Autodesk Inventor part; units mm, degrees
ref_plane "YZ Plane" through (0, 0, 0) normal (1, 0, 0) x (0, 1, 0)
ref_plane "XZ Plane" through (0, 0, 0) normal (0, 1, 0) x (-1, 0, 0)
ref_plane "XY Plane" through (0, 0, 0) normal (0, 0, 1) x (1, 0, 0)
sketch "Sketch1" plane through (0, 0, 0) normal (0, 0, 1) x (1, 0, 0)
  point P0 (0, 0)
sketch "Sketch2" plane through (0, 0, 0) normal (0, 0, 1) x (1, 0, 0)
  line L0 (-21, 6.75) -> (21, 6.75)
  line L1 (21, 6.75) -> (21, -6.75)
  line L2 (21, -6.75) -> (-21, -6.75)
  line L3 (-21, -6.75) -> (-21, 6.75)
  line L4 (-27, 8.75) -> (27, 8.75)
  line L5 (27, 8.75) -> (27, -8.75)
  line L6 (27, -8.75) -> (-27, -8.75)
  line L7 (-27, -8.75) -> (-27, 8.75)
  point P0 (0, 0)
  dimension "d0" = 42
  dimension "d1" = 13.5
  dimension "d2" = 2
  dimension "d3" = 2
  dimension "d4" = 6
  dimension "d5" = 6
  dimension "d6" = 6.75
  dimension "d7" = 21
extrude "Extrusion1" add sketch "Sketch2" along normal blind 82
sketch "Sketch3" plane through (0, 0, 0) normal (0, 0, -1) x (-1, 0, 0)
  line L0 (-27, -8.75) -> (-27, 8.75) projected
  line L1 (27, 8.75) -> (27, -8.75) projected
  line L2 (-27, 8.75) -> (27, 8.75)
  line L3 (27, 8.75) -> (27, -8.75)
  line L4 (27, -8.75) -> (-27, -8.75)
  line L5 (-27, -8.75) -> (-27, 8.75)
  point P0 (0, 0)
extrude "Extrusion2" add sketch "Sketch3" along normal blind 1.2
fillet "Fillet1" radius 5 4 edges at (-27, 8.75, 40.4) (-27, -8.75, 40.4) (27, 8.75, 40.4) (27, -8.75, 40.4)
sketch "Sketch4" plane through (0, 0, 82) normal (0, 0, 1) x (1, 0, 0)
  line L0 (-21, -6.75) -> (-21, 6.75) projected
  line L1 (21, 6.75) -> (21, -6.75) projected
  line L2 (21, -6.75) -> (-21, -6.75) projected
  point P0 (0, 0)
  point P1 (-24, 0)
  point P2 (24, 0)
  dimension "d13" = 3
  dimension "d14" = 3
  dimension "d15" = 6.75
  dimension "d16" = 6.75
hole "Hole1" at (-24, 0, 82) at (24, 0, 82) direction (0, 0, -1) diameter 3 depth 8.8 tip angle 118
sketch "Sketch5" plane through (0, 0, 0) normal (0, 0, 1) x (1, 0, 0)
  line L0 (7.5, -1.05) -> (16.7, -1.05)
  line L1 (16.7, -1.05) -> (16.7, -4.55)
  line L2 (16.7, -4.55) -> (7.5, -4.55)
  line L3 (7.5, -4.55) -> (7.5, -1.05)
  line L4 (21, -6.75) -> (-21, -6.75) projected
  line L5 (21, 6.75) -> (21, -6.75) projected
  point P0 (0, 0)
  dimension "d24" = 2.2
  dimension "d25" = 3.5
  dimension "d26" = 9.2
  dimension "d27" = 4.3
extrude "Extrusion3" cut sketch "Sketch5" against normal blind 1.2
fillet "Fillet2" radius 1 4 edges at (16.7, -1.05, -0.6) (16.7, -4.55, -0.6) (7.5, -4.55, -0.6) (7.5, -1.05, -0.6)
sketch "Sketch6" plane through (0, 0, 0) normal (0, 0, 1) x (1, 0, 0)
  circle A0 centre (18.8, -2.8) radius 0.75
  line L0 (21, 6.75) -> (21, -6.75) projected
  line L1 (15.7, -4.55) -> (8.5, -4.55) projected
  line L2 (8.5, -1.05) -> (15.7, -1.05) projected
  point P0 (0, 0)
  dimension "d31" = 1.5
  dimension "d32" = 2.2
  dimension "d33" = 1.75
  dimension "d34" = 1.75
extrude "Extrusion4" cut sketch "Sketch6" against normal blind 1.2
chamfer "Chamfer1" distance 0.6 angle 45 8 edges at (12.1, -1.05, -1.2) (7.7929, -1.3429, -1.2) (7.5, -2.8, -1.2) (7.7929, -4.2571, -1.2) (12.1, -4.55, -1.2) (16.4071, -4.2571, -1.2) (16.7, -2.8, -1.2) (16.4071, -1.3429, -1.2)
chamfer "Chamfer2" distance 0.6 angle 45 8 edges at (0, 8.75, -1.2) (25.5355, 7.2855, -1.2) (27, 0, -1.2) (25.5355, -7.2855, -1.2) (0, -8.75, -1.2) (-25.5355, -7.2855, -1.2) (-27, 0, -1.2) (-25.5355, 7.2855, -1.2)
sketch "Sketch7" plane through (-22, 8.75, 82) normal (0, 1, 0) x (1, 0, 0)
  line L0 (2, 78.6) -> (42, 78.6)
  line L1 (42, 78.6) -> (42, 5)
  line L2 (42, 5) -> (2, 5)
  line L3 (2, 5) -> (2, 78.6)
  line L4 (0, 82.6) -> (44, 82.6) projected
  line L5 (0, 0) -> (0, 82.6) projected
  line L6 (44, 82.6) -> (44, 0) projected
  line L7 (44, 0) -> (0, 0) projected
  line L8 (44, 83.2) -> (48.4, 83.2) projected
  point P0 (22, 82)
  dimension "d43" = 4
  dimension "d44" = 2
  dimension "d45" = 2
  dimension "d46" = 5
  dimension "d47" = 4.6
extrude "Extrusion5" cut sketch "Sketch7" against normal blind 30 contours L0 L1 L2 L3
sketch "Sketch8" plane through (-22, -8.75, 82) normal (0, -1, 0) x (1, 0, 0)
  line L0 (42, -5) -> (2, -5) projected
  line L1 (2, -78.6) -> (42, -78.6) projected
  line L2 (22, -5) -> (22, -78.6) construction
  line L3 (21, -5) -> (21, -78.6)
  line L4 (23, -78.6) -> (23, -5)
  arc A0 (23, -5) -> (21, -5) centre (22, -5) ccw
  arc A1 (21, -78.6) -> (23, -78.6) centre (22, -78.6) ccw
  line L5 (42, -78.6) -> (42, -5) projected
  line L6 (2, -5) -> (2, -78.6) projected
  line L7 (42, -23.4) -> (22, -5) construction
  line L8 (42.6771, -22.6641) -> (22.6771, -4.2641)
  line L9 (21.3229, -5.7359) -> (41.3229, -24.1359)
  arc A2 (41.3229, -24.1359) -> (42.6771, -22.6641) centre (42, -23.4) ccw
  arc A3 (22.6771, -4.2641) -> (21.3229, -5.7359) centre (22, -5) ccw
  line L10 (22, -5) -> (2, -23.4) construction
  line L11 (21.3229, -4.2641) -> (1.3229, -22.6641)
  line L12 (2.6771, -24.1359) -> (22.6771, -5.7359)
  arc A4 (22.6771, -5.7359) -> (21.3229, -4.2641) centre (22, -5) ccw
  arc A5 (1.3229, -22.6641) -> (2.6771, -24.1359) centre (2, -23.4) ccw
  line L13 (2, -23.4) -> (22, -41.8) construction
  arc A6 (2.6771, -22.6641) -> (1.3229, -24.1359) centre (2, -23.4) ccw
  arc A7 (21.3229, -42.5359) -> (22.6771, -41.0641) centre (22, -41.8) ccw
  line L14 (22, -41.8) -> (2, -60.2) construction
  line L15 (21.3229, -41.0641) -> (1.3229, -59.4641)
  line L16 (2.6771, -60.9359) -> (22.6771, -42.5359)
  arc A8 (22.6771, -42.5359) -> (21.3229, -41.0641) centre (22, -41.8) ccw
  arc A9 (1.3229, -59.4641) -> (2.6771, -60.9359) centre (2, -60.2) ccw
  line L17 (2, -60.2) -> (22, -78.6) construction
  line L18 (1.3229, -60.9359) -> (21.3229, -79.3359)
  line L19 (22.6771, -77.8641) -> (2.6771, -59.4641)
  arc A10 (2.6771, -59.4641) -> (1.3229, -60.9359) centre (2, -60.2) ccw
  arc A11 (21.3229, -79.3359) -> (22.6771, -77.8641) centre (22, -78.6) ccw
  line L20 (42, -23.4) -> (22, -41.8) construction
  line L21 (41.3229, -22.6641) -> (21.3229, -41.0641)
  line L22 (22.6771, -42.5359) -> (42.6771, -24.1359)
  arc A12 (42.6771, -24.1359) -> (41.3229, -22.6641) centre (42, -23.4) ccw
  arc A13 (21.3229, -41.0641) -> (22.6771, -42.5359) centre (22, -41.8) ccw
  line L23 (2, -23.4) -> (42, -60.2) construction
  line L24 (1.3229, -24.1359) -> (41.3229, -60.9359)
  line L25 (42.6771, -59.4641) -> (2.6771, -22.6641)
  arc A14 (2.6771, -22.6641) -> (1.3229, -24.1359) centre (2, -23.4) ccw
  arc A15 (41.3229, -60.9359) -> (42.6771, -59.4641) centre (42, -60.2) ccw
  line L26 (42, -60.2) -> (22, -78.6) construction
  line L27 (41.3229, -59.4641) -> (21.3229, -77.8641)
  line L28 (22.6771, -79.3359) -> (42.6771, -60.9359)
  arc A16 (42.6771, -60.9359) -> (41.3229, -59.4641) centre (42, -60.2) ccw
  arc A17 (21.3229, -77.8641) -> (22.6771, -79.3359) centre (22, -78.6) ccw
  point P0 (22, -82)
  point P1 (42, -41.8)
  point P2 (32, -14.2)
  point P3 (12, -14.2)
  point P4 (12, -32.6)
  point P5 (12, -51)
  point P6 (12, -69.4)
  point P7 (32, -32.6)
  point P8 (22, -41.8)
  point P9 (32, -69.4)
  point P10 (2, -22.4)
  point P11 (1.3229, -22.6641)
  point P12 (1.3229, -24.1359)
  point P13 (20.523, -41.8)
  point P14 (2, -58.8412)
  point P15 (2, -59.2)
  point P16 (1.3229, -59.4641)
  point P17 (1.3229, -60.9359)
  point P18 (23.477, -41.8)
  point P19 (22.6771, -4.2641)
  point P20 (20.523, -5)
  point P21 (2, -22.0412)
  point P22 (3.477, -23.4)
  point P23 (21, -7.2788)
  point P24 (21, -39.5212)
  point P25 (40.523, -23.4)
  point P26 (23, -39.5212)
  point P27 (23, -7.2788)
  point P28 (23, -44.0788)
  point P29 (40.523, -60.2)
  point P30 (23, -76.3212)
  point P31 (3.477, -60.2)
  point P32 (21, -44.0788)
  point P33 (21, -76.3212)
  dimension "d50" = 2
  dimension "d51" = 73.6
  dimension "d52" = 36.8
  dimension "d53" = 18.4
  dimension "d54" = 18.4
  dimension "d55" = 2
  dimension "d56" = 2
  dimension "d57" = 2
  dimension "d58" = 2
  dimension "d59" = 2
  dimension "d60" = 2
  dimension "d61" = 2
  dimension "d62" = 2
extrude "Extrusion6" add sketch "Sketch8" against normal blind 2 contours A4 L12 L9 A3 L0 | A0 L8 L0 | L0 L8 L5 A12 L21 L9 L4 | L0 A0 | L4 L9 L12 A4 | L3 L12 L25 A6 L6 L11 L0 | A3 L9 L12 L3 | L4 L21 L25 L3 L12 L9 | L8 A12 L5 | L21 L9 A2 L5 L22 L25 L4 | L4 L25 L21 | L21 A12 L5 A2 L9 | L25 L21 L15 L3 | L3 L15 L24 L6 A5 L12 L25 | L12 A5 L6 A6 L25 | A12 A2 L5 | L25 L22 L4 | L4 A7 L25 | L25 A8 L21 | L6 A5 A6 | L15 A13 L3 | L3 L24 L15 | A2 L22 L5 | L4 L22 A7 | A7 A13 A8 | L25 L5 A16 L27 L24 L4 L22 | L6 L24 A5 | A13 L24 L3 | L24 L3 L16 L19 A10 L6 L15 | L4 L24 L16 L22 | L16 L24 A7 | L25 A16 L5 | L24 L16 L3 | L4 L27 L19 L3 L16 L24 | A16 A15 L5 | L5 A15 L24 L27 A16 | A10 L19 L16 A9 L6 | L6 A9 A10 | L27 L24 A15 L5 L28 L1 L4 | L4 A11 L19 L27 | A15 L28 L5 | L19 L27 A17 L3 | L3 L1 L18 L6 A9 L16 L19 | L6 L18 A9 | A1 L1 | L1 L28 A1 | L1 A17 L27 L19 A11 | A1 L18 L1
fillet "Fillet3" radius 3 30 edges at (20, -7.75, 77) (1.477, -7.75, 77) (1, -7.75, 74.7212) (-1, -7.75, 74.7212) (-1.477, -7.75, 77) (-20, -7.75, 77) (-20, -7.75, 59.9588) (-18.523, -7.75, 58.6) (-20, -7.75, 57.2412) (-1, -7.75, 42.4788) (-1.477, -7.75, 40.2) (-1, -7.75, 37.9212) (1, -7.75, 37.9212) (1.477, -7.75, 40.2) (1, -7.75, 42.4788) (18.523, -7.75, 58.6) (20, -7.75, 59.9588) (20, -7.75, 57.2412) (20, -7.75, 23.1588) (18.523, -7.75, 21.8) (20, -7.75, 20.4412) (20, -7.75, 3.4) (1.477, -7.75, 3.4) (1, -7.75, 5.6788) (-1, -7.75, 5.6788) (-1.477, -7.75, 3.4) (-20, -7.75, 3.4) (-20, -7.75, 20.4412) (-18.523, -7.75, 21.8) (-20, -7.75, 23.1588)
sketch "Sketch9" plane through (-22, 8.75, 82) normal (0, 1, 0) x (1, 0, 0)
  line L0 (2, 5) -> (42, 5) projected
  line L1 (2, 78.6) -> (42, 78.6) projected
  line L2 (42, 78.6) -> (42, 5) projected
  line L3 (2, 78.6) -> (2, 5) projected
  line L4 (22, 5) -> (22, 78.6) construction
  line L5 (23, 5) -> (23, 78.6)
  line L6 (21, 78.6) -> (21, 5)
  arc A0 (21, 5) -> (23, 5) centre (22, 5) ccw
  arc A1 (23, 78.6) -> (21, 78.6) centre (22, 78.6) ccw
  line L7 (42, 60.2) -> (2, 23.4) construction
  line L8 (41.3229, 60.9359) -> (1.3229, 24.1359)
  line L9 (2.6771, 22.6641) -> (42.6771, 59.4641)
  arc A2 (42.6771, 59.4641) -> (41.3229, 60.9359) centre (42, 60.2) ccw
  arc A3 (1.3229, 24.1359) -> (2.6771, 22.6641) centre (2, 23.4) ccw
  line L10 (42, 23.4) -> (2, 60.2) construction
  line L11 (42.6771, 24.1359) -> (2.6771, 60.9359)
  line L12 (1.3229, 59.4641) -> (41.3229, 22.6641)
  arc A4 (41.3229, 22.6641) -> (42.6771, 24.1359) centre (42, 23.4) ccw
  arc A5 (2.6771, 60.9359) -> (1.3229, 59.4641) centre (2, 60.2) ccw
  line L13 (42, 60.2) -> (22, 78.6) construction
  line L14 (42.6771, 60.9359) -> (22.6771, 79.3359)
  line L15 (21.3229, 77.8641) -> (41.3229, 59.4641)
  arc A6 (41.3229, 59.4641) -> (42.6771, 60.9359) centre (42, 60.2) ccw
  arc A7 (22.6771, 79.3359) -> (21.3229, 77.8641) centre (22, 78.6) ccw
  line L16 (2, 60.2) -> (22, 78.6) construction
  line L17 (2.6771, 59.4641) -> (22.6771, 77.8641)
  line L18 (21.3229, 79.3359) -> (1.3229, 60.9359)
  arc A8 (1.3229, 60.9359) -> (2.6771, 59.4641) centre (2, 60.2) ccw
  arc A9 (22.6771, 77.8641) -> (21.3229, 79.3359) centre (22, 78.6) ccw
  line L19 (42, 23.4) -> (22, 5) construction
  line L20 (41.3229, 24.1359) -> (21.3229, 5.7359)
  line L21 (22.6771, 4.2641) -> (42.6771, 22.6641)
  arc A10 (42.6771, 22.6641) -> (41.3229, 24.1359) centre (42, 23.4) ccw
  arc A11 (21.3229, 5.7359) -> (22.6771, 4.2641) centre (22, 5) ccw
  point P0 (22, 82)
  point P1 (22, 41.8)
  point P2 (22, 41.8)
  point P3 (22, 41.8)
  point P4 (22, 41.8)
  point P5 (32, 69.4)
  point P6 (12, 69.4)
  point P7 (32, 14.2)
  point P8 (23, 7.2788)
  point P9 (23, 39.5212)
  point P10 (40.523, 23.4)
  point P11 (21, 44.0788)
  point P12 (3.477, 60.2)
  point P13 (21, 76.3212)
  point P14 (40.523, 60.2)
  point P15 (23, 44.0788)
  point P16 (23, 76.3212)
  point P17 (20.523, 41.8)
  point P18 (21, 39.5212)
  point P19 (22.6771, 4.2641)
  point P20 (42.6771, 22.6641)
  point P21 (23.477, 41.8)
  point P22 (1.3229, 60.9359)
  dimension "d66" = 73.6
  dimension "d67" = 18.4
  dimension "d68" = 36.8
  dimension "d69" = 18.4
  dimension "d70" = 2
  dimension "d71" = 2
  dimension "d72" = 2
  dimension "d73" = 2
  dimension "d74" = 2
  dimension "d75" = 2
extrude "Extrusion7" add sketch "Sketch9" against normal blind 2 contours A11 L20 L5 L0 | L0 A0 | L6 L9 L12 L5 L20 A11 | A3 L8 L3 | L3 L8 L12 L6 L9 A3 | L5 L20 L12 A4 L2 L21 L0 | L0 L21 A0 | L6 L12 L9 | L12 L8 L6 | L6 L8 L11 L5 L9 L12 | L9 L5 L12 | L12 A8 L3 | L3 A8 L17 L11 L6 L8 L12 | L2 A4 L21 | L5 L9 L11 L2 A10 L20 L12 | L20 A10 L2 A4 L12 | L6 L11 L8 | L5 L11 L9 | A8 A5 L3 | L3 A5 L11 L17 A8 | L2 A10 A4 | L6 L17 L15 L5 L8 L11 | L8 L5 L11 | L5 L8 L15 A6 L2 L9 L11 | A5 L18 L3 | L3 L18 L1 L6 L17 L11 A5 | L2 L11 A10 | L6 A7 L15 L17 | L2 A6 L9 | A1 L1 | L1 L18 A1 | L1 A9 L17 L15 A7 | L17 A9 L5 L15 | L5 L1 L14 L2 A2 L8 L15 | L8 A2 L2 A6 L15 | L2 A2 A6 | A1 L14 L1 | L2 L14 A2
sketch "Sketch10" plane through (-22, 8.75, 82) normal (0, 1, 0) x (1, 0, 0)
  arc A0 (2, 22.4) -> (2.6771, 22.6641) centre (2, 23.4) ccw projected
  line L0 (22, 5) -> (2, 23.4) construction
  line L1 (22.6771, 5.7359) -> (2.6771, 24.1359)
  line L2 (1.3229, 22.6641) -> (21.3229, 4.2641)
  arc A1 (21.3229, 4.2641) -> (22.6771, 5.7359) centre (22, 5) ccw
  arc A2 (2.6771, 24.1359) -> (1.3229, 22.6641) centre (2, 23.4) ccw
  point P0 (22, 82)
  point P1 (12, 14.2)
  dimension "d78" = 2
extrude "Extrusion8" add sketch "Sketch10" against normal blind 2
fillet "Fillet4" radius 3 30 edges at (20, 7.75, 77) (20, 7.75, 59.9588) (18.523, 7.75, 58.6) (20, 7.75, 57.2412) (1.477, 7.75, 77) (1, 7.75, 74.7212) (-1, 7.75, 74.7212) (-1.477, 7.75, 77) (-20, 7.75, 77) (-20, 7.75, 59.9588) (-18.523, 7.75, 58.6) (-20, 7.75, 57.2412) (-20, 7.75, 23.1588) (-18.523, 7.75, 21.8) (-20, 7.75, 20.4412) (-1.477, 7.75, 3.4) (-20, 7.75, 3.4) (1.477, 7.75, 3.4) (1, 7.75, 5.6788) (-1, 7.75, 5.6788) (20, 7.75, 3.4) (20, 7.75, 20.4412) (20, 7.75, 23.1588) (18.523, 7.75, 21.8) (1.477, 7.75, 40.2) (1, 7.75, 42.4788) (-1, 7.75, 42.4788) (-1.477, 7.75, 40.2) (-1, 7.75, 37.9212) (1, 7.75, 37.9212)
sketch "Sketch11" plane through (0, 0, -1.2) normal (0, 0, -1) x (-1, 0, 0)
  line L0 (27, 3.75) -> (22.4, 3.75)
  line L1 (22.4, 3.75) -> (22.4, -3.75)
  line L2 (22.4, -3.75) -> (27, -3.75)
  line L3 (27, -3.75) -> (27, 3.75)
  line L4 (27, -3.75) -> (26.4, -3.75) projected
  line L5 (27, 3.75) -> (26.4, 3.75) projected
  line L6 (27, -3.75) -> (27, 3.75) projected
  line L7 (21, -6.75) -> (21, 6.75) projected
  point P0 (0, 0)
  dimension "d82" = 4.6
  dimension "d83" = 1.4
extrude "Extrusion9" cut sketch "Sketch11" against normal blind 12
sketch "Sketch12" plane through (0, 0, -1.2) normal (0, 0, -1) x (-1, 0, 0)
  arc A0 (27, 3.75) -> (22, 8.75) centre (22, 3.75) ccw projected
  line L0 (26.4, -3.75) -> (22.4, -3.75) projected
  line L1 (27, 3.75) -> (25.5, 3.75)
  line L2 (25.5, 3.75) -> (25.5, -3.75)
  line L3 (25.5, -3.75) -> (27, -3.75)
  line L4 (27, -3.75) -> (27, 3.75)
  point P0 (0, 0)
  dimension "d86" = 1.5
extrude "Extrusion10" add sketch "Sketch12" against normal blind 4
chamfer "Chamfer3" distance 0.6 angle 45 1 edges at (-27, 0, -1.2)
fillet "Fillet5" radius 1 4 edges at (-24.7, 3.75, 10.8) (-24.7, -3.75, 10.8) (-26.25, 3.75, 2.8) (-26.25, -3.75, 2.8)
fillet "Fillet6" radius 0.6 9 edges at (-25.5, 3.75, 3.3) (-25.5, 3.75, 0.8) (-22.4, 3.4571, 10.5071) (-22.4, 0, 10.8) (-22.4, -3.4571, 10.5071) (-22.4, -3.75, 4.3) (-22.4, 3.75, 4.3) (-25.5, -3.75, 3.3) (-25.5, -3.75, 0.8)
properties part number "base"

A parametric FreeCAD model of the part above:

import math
import FreeCAD as App
import Part
import Sketcher
from FreeCAD import Vector
Q = App.Units.Quantity


def edges_at(feature, points):
    """Names of the edges that pass closest to the given points."""
    edges = feature.Shape.Edges
    near = lambda p: min(range(len(edges)), key=lambda i: edges[i].distToShape(Part.Vertex(*p))[0])
    return sorted({f"Edge{near(p) + 1}" for p in points})


def add_polygon(sketch, points):
    """Adds a closed chain of lines whose ends are joined by coincident constraints."""
    first, n = sketch.GeometryCount, len(points)
    for a, b in zip(points, points[1:] + points[:1]):
        sketch.addGeometry(Part.LineSegment(App.Vector(*a, 0), App.Vector(*b, 0)), False)
    for i in range(n):
        sketch.addConstraint(Sketcher.Constraint("Coincident", first + i, 2, first + (i + 1) % n, 1))

doc = App.newDocument("Part")
body = doc.addObject("PartDesign::Body", "Body")

sketch1 = body.newObject("Sketcher::SketchObject", "Sketch")
sketch1.AttachmentSupport = (doc.getObject("XY_Plane"), [""])
sketch1.MapMode = "FlatFace"
add_polygon(sketch1, [(27, 8.75), (-27, 8.75), (-27, -8.75), (27, -8.75)])
add_polygon(sketch1, [(-21, -6.75), (-21, 6.75), (21, 6.75), (21, -6.75)])
sketch1.addConstraint(Sketcher.Constraint("Horizontal", 0))
sketch1.addConstraint(Sketcher.Constraint("Vertical", 1))
sketch1.addConstraint(Sketcher.Constraint("Horizontal", 2))
sketch1.addConstraint(Sketcher.Constraint("Vertical", 3))
sketch1.addConstraint(Sketcher.Constraint("Vertical", 4))
sketch1.addConstraint(Sketcher.Constraint("Horizontal", 5))
sketch1.addConstraint(Sketcher.Constraint("Vertical", 6))
sketch1.addConstraint(Sketcher.Constraint("Horizontal", 7))
sketch1.addConstraint(Sketcher.Constraint("Symmetric", 0, 2, 2, 2, -1, 1))
sketch1.addConstraint(Sketcher.Constraint("Symmetric", 4, 2, 6, 2, -1, 1))
sketch1.addConstraint(Sketcher.Constraint("DistanceX", 5, 1, 5, 2, Q("42 mm")))
sketch1.addConstraint(Sketcher.Constraint("DistanceY", 4, 1, 4, 2, Q("13.5 mm")))
sketch1.addConstraint(Sketcher.Constraint("DistanceX", 0, 2, 4, 2, Q("6 mm")))
sketch1.addConstraint(Sketcher.Constraint("DistanceY", 4, 2, 0, 2, Q("2 mm")))
pad1 = body.newObject("PartDesign::Pad", "Pad")
pad1.Profile = sketch1
pad1.Length = 82

sketch2 = body.newObject("Sketcher::SketchObject", "Sketch001")
sketch2.AttachmentSupport = (doc.getObject("XY_Plane"), [""])
sketch2.MapMode = "FlatFace"
add_polygon(sketch2, [(27, 8.75), (27, -8.75), (-27, -8.75), (-27, 8.75)])
sketch2.addConstraint(Sketcher.Constraint("Vertical", 0))
sketch2.addConstraint(Sketcher.Constraint("Horizontal", 1))
sketch2.addConstraint(Sketcher.Constraint("Vertical", 2))
sketch2.addConstraint(Sketcher.Constraint("Horizontal", 3))
sketch2.addConstraint(Sketcher.Constraint("Symmetric", 0, 2, 2, 2, -1, 1))
sketch2.addConstraint(Sketcher.Constraint("DistanceX", 1, 2, 1, 1, Q("54 mm")))
sketch2.addConstraint(Sketcher.Constraint("DistanceY", 0, 2, 0, 1, Q("17.5 mm")))
pad2 = body.newObject("PartDesign::Pad", "Pad001")
pad2.Profile = sketch2
pad2.Length = 1.2
pad2.Reversed = True
doc.recompute()

fillet = body.newObject("PartDesign::Fillet", "Fillet")
fillet.Base = (pad2, edges_at(pad2, [
    (-27, 8.75, 40.4),
    (-27, -8.75, 40.4),
    (27, 8.75, 40.4),
    (27, -8.75, 40.4),
]))
fillet.Radius = 5

sketch3 = body.newObject("Sketcher::SketchObject", "Sketch002")
sketch3.AttachmentSupport = (doc.getObject("XY_Plane"), [""])
sketch3.MapMode = "FlatFace"
sketch3.AttachmentOffset = App.Placement(Vector(0, 0, 82), App.Rotation())
sketch3.addGeometry(Part.Circle(Vector(-24, 0, 0), Vector(0, 0, 1), 1.5), False)
sketch3.addGeometry(Part.Circle(Vector(24, 0, 0), Vector(0, 0, 1), 1.5), False)
sketch3.addConstraint(Sketcher.Constraint("Equal", 0, 1))
sketch3.addConstraint(Sketcher.Constraint("Symmetric", 0, 3, 1, 3, -1, 1))
sketch3.addConstraint(Sketcher.Constraint("PointOnObject", 0, 3, -1))
sketch3.addConstraint(Sketcher.Constraint("Diameter", 0, Q("3 mm")))
sketch3.addConstraint(Sketcher.Constraint("DistanceX", 0, 3, -1, 1, Q("24 mm")))
doc.recompute()
hole = body.newObject("PartDesign::Hole", "Hole")
hole.Profile = sketch3
hole.ThreadType = "None"
hole.Diameter = 3
hole.DepthType = "Dimension"
hole.Depth = 8.8
hole.DrillPoint = "Angled"
hole.DrillPointAngle = 118

sketch4 = body.newObject("Sketcher::SketchObject", "Sketch003")
sketch4.AttachmentSupport = (doc.getObject("XY_Plane"), [""])
sketch4.MapMode = "FlatFace"
add_polygon(sketch4, [(16.7, -1.05), (7.5, -1.05), (7.5, -4.55), (16.7, -4.55)])
sketch4.addConstraint(Sketcher.Constraint("Horizontal", 0))
sketch4.addConstraint(Sketcher.Constraint("Vertical", 1))
sketch4.addConstraint(Sketcher.Constraint("Horizontal", 2))
sketch4.addConstraint(Sketcher.Constraint("Vertical", 3))
sketch4.addConstraint(Sketcher.Constraint("DistanceX", 0, 2, 0, 1, Q("9.2 mm")))
sketch4.addConstraint(Sketcher.Constraint("DistanceY", 1, 2, 1, 1, Q("3.5 mm")))
sketch4.addConstraint(Sketcher.Constraint("DistanceX", -1, 1, 0, 2, Q("7.5 mm")))
sketch4.addConstraint(Sketcher.Constraint("DistanceY", 0, 2, -1, 1, Q("1.05 mm")))
pocket1 = body.newObject("PartDesign::Pocket", "Pocket")
pocket1.Profile = sketch4
pocket1.Length = 1.2
doc.recompute()

fillet2 = body.newObject("PartDesign::Fillet", "Fillet001")
fillet2.Base = (pocket1, edges_at(pocket1, [
    (16.7, -1.05, -0.6),
    (16.7, -4.55, -0.6),
    (7.5, -4.55, -0.6),
    (7.5, -1.05, -0.6),
]))
fillet2.Radius = 1

sketch5 = body.newObject("Sketcher::SketchObject", "Sketch004")
sketch5.AttachmentSupport = (doc.getObject("XY_Plane"), [""])
sketch5.MapMode = "FlatFace"
sketch5.addGeometry(Part.Circle(Vector(18.8, -2.8, 0), Vector(0, 0, 1), 0.75), False)
sketch5.addConstraint(Sketcher.Constraint("Diameter", 0, Q("1.5 mm")))
sketch5.addConstraint(Sketcher.Constraint("DistanceX", -1, 1, 0, 3, Q("18.8 mm")))
sketch5.addConstraint(Sketcher.Constraint("DistanceY", 0, 3, -1, 1, Q("2.8 mm")))
pocket2 = body.newObject("PartDesign::Pocket", "Pocket001")
pocket2.Profile = sketch5
pocket2.Length = 1.2
doc.recompute()

chamfer = body.newObject("PartDesign::Chamfer", "Chamfer")
chamfer.Base = (pocket2, edges_at(pocket2, [
    (12.1, -1.05, -1.2),
    (7.793, -1.343, -1.2),
    (7.5, -2.8, -1.2),
    (7.793, -4.257, -1.2),
    (12.1, -4.55, -1.2),
    (16.407, -4.257, -1.2),
    (16.7, -2.8, -1.2),
    (16.407, -1.343, -1.2),
]))
chamfer.Size = 0.6
doc.recompute()

chamfer2 = body.newObject("PartDesign::Chamfer", "Chamfer001")
chamfer2.Base = (chamfer, edges_at(chamfer, [
    (0, 8.75, -1.2),
    (25.535, 7.285, -1.2),
    (27, 0, -1.2),
    (25.535, -7.285, -1.2),
    (0, -8.75, -1.2),
    (-25.535, -7.285, -1.2),
    (-27, 0, -1.2),
    (-25.535, 7.285, -1.2),
]))
chamfer2.Size = 0.6

sketch6 = body.newObject("Sketcher::SketchObject", "Sketch005")
sketch6.AttachmentSupport = (doc.getObject("XZ_Plane"), [""])
sketch6.MapMode = "FlatFace"
sketch6.AttachmentOffset = App.Placement(Vector(0, 0, -8.75), App.Rotation())
add_polygon(sketch6, [(20, 3.4), (-20, 3.4), (-20, 77), (20, 77)])
sketch6.addConstraint(Sketcher.Constraint("Horizontal", 0))
sketch6.addConstraint(Sketcher.Constraint("Vertical", 1))
sketch6.addConstraint(Sketcher.Constraint("Horizontal", 2))
sketch6.addConstraint(Sketcher.Constraint("Vertical", 3))
sketch6.addConstraint(Sketcher.Constraint("DistanceX", 0, 2, 0, 1, Q("40 mm")))
sketch6.addConstraint(Sketcher.Constraint("DistanceY", 1, 1, 1, 2, Q("73.6 mm")))
sketch6.addConstraint(Sketcher.Constraint("DistanceX", 0, 2, -1, 1, Q("20 mm")))
sketch6.addConstraint(Sketcher.Constraint("DistanceY", -1, 1, 1, 2, Q("77 mm")))
pocket3 = body.newObject("PartDesign::Pocket", "Pocket002")
pocket3.Profile = sketch6
pocket3.Length = 30
pocket3.Reversed = True

sketch7 = body.newObject("Sketcher::SketchObject", "Sketch006")
sketch7.AttachmentSupport = (doc.getObject("XZ_Plane"), [""])
sketch7.MapMode = "FlatFace"
sketch7.AttachmentOffset = App.Placement(Vector(0, 0, 8.75), App.Rotation())
sketch7.addGeometry(Part.LineSegment(Vector(-1, 77, 0), Vector(-1.476991, 77, 0)), False)
sketch7.addGeometry(Part.LineSegment(Vector(-1.476991, 77, 0), Vector(-20, 59.958832, 0)), False)
sketch7.addGeometry(Part.LineSegment(Vector(-20, 59.958832, 0), Vector(-20, 59.600007, 0)), False)
sketch7.addGeometry(Part.ArcOfCircle(Part.Circle(Vector(-20, 58.6, 0), Vector(0, 0, 1), 1.000007), math.radians(90), math.radians(227.382908)), False)
sketch7.addGeometry(Part.LineSegment(Vector(-20.6771, 57.8641, 0), Vector(-1.476991, 40.2, 0)), False)
sketch7.addGeometry(Part.LineSegment(Vector(-1.476991, 40.2, 0), Vector(-20, 23.158832, 0)), False)
sketch7.addGeometry(Part.LineSegment(Vector(-20, 23.158832, 0), Vector(-20, 22.800007, 0)), False)
sketch7.addGeometry(Part.ArcOfCircle(Part.Circle(Vector(-20, 21.8, 0), Vector(0, 0, 1), 1.000007), math.radians(90), math.radians(227.382908)), False)
sketch7.addGeometry(Part.LineSegment(Vector(-20.6771, 21.0641, 0), Vector(-0.6771, 2.6641, 0)), False)
sketch7.addGeometry(Part.ArcOfCircle(Part.Circle(Vector(0, 3.4, 0), Vector(0, 0, 1), 1), math.radians(-132.617092), math.radians(-47.382908)), False)
sketch7.addGeometry(Part.LineSegment(Vector(0.6771, 2.6641, 0), Vector(20.6771, 21.0641, 0)), False)
sketch7.addGeometry(Part.ArcOfCircle(Part.Circle(Vector(20, 21.8, 0), Vector(0, 0, 1), 1.000007), math.radians(-47.382908), math.radians(47.382908)), False)
sketch7.addGeometry(Part.LineSegment(Vector(20.6771, 22.5359, 0), Vector(1.476991, 40.2, 0)), False)
sketch7.addGeometry(Part.LineSegment(Vector(1.476991, 40.2, 0), Vector(20.6771, 57.8641, 0)), False)
sketch7.addGeometry(Part.ArcOfCircle(Part.Circle(Vector(20, 58.6, 0), Vector(0, 0, 1), 1.000007), math.radians(-47.382908), math.radians(47.382908)), False)
sketch7.addGeometry(Part.LineSegment(Vector(20.6771, 59.3359, 0), Vector(0.6771, 77.7359, 0)), False)
sketch7.addGeometry(Part.ArcOfCircle(Part.Circle(Vector(0, 77, 0), Vector(0, 0, 1), 1), math.radians(47.382908), math.radians(180)), False)
add_polygon(sketch7, [(1, 74.721168), (18.523009, 58.6), (1, 42.478832)])
add_polygon(sketch7, [(-1, 74.721168), (-1, 42.478832), (-18.523009, 58.6)])
add_polygon(sketch7, [(1, 37.921168), (18.523009, 21.8), (1, 5.678832)])
add_polygon(sketch7, [(-18.523009, 21.8), (-1, 37.921168), (-1, 5.678832)])
sketch7.addConstraint(Sketcher.Constraint("Coincident", 0, 2, 1, 1))
sketch7.addConstraint(Sketcher.Constraint("Coincident", 1, 2, 2, 1))
sketch7.addConstraint(Sketcher.Constraint("Coincident", 2, 2, 3, 1))
sketch7.addConstraint(Sketcher.Constraint("Tangent", 3, 2, 4, 1))
sketch7.addConstraint(Sketcher.Constraint("Coincident", 4, 2, 5, 1))
sketch7.addConstraint(Sketcher.Constraint("Coincident", 5, 2, 6, 1))
sketch7.addConstraint(Sketcher.Constraint("Coincident", 6, 2, 7, 1))
sketch7.addConstraint(Sketcher.Constraint("Tangent", 7, 2, 8, 1))
sketch7.addConstraint(Sketcher.Constraint("Tangent", 8, 2, 9, 1))
sketch7.addConstraint(Sketcher.Constraint("Tangent", 9, 2, 10, 1))
sketch7.addConstraint(Sketcher.Constraint("Tangent", 10, 2, 11, 1))
sketch7.addConstraint(Sketcher.Constraint("Tangent", 11, 2, 12, 1))
sketch7.addConstraint(Sketcher.Constraint("Coincident", 12, 2, 13, 1))
sketch7.addConstraint(Sketcher.Constraint("Tangent", 13, 2, 14, 1))
sketch7.addConstraint(Sketcher.Constraint("Tangent", 14, 2, 15, 1))
sketch7.addConstraint(Sketcher.Constraint("Tangent", 15, 2, 16, 1))
sketch7.addConstraint(Sketcher.Constraint("Coincident", 16, 2, 0, 1))
sketch7.addConstraint(Sketcher.Constraint("Horizontal", 0))
sketch7.addConstraint(Sketcher.Constraint("Vertical", 2))
sketch7.addConstraint(Sketcher.Constraint("Vertical", 6))
sketch7.addConstraint(Sketcher.Constraint("Vertical", 19))
sketch7.addConstraint(Sketcher.Constraint("Vertical", 20))
sketch7.addConstraint(Sketcher.Constraint("Vertical", 25))
sketch7.addConstraint(Sketcher.Constraint("Vertical", 27))
sketch7.addConstraint(Sketcher.Constraint("Equal", 3, 7))
sketch7.addConstraint(Sketcher.Constraint("Equal", 7, 9))
sketch7.addConstraint(Sketcher.Constraint("Equal", 9, 11))
sketch7.addConstraint(Sketcher.Constraint("Equal", 11, 14))
sketch7.addConstraint(Sketcher.Constraint("Equal", 14, 16))
sketch7.addConstraint(Sketcher.Constraint("Symmetric", 7, 3, 11, 3, -2))
sketch7.addConstraint(Sketcher.Constraint("Symmetric", 3, 3, 14, 3, -2))
sketch7.addConstraint(Sketcher.Constraint("Symmetric", 4, 2, 12, 2, -2))
sketch7.addConstraint(Sketcher.Constraint("Symmetric", 18, 2, 20, 2, -2))
sketch7.addConstraint(Sketcher.Constraint("Symmetric", 17, 2, 21, 2, -2))
sketch7.addConstraint(Sketcher.Constraint("Symmetric", 25, 2, 26, 2, -2))
sketch7.addConstraint(Sketcher.Constraint("Symmetric", 23, 2, 28, 2, -2))
sketch7.addConstraint(Sketcher.Constraint("PointOnObject", 9, 3, -2))
sketch7.addConstraint(Sketcher.Constraint("PointOnObject", 16, 3, -2))
sketch7.addConstraint(Sketcher.Constraint("Parallel", 1, 5))
sketch7.addConstraint(Sketcher.Constraint("Parallel", 4, 8))
sketch7.addConstraint(Sketcher.Constraint("Parallel", 5, 10))
sketch7.addConstraint(Sketcher.Constraint("Parallel", 8, 12))
sketch7.addConstraint(Sketcher.Constraint("Parallel", 12, 15))
sketch7.addConstraint(Sketcher.Constraint("Parallel", 15, 17))
sketch7.addConstraint(Sketcher.Constraint("Parallel", 13, 18))
sketch7.addConstraint(Sketcher.Constraint("Parallel", 18, 22))
sketch7.addConstraint(Sketcher.Constraint("Parallel", 21, 23))
sketch7.addConstraint(Sketcher.Constraint("Parallel", 22, 24))
sketch7.addConstraint(Sketcher.Constraint("Parallel", 23, 28))
sketch7.addConstraint(Sketcher.Constraint("Horizontal", 16, 3, 0, 2))
sketch7.addConstraint(Sketcher.Constraint("Horizontal", 14, 3, 17, 2))
sketch7.addConstraint(Sketcher.Constraint("Horizontal", 11, 3, 23, 2))
sketch7.addConstraint(Sketcher.Constraint("Vertical", 3, 3, 7, 3))
sketch7.addConstraint(Sketcher.Constraint("Vertical", 7, 3, 1, 2))
sketch7.addConstraint(Sketcher.Constraint("Vertical", 0, 2, 4, 2))
sketch7.addConstraint(Sketcher.Constraint("Vertical", 2, 2, 5, 2))
sketch7.addConstraint(Sketcher.Constraint("Vertical", 16, 2, 20, 2))
sketch7.addConstraint(Sketcher.Constraint("Vertical", 17, 2, 23, 2))
sketch7.addConstraint(Sketcher.Constraint("Vertical", 19, 2, 24, 2))
sketch7.addConstraint(Sketcher.Constraint("Equal", 2, 6))
sketch7.addConstraint(Sketcher.Constraint("Radius", 3, Q("1 mm")))
sketch7.addConstraint(Sketcher.Constraint("DistanceY", 7, 3, 3, 3, Q("36.8 mm")))
sketch7.addConstraint(Sketcher.Constraint("DistanceX", 3, 3, -1, 1, Q("20 mm")))
sketch7.addConstraint(Sketcher.Constraint("DistanceY", -1, 1, 16, 3, Q("77 mm")))
sketch7.addConstraint(Sketcher.Constraint("DistanceY", 19, 1, 19, 2, Q("32.2423 mm")))
pad3 = body.newObject("PartDesign::Pad", "Pad002")
pad3.Profile = sketch7
pad3.Length = 2
pad3.Reversed = True
doc.recompute()

fillet3 = body.newObject("PartDesign::Fillet", "Fillet002")
fillet3.Base = (pad3, edges_at(pad3, [
    (20, -7.75, 77),
    (1.477, -7.75, 77),
    (1, -7.75, 74.721),
    (-1, -7.75, 74.721),
    (-1.477, -7.75, 77),
    (-20, -7.75, 77),
    (-20, -7.75, 59.959),
    (-18.523, -7.75, 58.6),
    (-20, -7.75, 57.241),
    (-1, -7.75, 42.479),
    (-1.477, -7.75, 40.2),
    (-1, -7.75, 37.921),
    (1, -7.75, 37.921),
    (1.477, -7.75, 40.2),
    (1, -7.75, 42.479),
    (18.523, -7.75, 58.6),
    (20, -7.75, 59.959),
    (20, -7.75, 57.241),
    (20, -7.75, 23.159),
    (18.523, -7.75, 21.8),
    (20, -7.75, 20.441),
    (20, -7.75, 3.4),
    (1.477, -7.75, 3.4),
    (1, -7.75, 5.679),
    (-1, -7.75, 5.679),
    (-1.477, -7.75, 3.4),
    (-20, -7.75, 3.4),
    (-20, -7.75, 20.441),
    (-18.523, -7.75, 21.8),
    (-20, -7.75, 23.159),
]))
fillet3.Radius = 3

sketch8 = body.newObject("Sketcher::SketchObject", "Sketch007")
sketch8.AttachmentSupport = (doc.getObject("XZ_Plane"), [""])
sketch8.MapMode = "FlatFace"
sketch8.AttachmentOffset = App.Placement(Vector(0, 0, -8.75), App.Rotation())
sketch8.addGeometry(Part.LineSegment(Vector(-1, 42.478832, 0), Vector(-1, 77, 0)), False)
sketch8.addGeometry(Part.ArcOfCircle(Part.Circle(Vector(0, 77, 0), Vector(0, 0, 1), 1), math.radians(47.382908), math.radians(180)), False)
sketch8.addGeometry(Part.LineSegment(Vector(0.6771, 77.7359, 0), Vector(20.6771, 59.3359, 0)), False)
sketch8.addGeometry(Part.ArcOfCircle(Part.Circle(Vector(20, 58.6, 0), Vector(0, 0, 1), 1.000007), math.radians(-47.382908), math.radians(47.382908)), False)
sketch8.addGeometry(Part.LineSegment(Vector(20.6771, 57.8641, 0), Vector(1.476991, 40.2, 0)), False)
sketch8.addGeometry(Part.LineSegment(Vector(1.476991, 40.2, 0), Vector(20.6771, 22.5359, 0)), False)
sketch8.addGeometry(Part.ArcOfCircle(Part.Circle(Vector(20, 21.8, 0), Vector(0, 0, 1), 1.000007), math.radians(-47.382908), math.radians(47.382908)), False)
sketch8.addGeometry(Part.LineSegment(Vector(20.6771, 21.0641, 0), Vector(0.6771, 2.6641, 0)), False)
sketch8.addGeometry(Part.ArcOfCircle(Part.Circle(Vector(0, 3.4, 0), Vector(0, 0, 1), 1), math.radians(-132.617092), math.radians(-47.382908)), False)
sketch8.addGeometry(Part.LineSegment(Vector(-0.6771, 2.6641, 0), Vector(-20.6771, 21.0641, 0)), False)
sketch8.addGeometry(Part.ArcOfCircle(Part.Circle(Vector(-20, 21.8, 0), Vector(0, 0, 1), 1.000007), math.radians(132.617092), math.radians(227.382908)), False)
sketch8.addGeometry(Part.LineSegment(Vector(-20.6771, 22.5359, 0), Vector(-1.476991, 40.2, 0)), False)
sketch8.addGeometry(Part.LineSegment(Vector(-1.476991, 40.2, 0), Vector(-20.6771, 57.8641, 0)), False)
sketch8.addGeometry(Part.ArcOfCircle(Part.Circle(Vector(-20, 58.6, 0), Vector(0, 0, 1), 1.000007), math.radians(47.382908), math.radians(227.382908)), False)
sketch8.addGeometry(Part.LineSegment(Vector(-19.3229, 59.3359, 0), Vector(-1, 42.478832, 0)), False)
add_polygon(sketch8, [(1, 74.721168), (1, 42.478832), (18.523009, 58.6)])
add_polygon(sketch8, [(-1, 37.921168), (-18.523009, 21.8), (-1, 5.678832)])
add_polygon(sketch8, [(1, 37.921168), (1, 5.678832), (18.523009, 21.8)])
sketch8.addConstraint(Sketcher.Constraint("Tangent", 0, 2, 1, 2))
sketch8.addConstraint(Sketcher.Constraint("Tangent", 1, 1, 2, 1))
sketch8.addConstraint(Sketcher.Constraint("Tangent", 2, 2, 3, 2))
sketch8.addConstraint(Sketcher.Constraint("Tangent", 3, 1, 4, 1))
sketch8.addConstraint(Sketcher.Constraint("Coincident", 4, 2, 5, 1))
sketch8.addConstraint(Sketcher.Constraint("Tangent", 5, 2, 6, 2))
sketch8.addConstraint(Sketcher.Constraint("Tangent", 6, 1, 7, 1))
sketch8.addConstraint(Sketcher.Constraint("Tangent", 7, 2, 8, 2))
sketch8.addConstraint(Sketcher.Constraint("Tangent", 8, 1, 9, 1))
sketch8.addConstraint(Sketcher.Constraint("Tangent", 9, 2, 10, 2))
sketch8.addConstraint(Sketcher.Constraint("Tangent", 10, 1, 11, 1))
sketch8.addConstraint(Sketcher.Constraint("Coincident", 11, 2, 12, 1))
sketch8.addConstraint(Sketcher.Constraint("Tangent", 12, 2, 13, 2))
sketch8.addConstraint(Sketcher.Constraint("Tangent", 13, 1, 14, 1))
sketch8.addConstraint(Sketcher.Constraint("Coincident", 14, 2, 0, 1))
sketch8.addConstraint(Sketcher.Constraint("Vertical", 0))
sketch8.addConstraint(Sketcher.Constraint("Vertical", 15))
sketch8.addConstraint(Sketcher.Constraint("Vertical", 20))
sketch8.addConstraint(Sketcher.Constraint("Vertical", 21))
sketch8.addConstraint(Sketcher.Constraint("Equal", 1, 3))
sketch8.addConstraint(Sketcher.Constraint("Equal", 3, 6))
sketch8.addConstraint(Sketcher.Constraint("Equal", 6, 8))
sketch8.addConstraint(Sketcher.Constraint("Equal", 8, 10))
sketch8.addConstraint(Sketcher.Constraint("Equal", 10, 13))
sketch8.addConstraint(Sketcher.Constraint("Symmetric", 6, 3, 10, 3, -2))
sketch8.addConstraint(Sketcher.Constraint("Symmetric", 3, 3, 13, 3, -2))
sketch8.addConstraint(Sketcher.Constraint("Symmetric", 4, 2, 11, 2, -2))
sketch8.addConstraint(Sketcher.Constraint("Symmetric", 14, 2, 15, 2, -2))
sketch8.addConstraint(Sketcher.Constraint("Symmetric", 19, 2, 21, 2, -2))
sketch8.addConstraint(Sketcher.Constraint("Symmetric", 18, 2, 22, 2, -2))
sketch8.addConstraint(Sketcher.Constraint("PointOnObject", 1, 3, -2))
sketch8.addConstraint(Sketcher.Constraint("PointOnObject", 8, 3, -2))
sketch8.addConstraint(Sketcher.Constraint("Parallel", 2, 5))
sketch8.addConstraint(Sketcher.Constraint("Parallel", 4, 7))
sketch8.addConstraint(Sketcher.Constraint("Parallel", 5, 9))
sketch8.addConstraint(Sketcher.Constraint("Parallel", 12, 14))
sketch8.addConstraint(Sketcher.Constraint("Parallel", 11, 16))
sketch8.addConstraint(Sketcher.Constraint("Parallel", 14, 17))
sketch8.addConstraint(Sketcher.Constraint("Parallel", 16, 18))
sketch8.addConstraint(Sketcher.Constraint("Parallel", 17, 19))
sketch8.addConstraint(Sketcher.Constraint("Parallel", 19, 23))
sketch8.addConstraint(Sketcher.Constraint("Horizontal", 13, 3, 16, 2))
sketch8.addConstraint(Sketcher.Constraint("Horizontal", 10, 3, 18, 2))
sketch8.addConstraint(Sketcher.Constraint("Vertical", 3, 3, 6, 3))
sketch8.addConstraint(Sketcher.Constraint("Vertical", 14, 2, 19, 2))
sketch8.addConstraint(Sketcher.Constraint("Vertical", 16, 2, 22, 2))
sketch8.addConstraint(Sketcher.Constraint("Radius", 1, Q("1 mm")))
sketch8.addConstraint(Sketcher.Constraint("DistanceY", 3, 3, 1, 3, Q("18.4 mm")))
sketch8.addConstraint(Sketcher.Constraint("DistanceY", 6, 3, 3, 3, Q("36.8 mm")))
sketch8.addConstraint(Sketcher.Constraint("DistanceY", -1, 1, 1, 3, Q("77 mm")))
sketch8.addConstraint(Sketcher.Constraint("DistanceX", -1, 1, 3, 3, Q("20 mm")))
pad4 = body.newObject("PartDesign::Pad", "Pad003")
pad4.Profile = sketch8
pad4.Length = 2

sketch9 = body.newObject("Sketcher::SketchObject", "Sketch008")
sketch9.AttachmentSupport = (doc.getObject("XZ_Plane"), [""])
sketch9.MapMode = "FlatFace"
sketch9.AttachmentOffset = App.Placement(Vector(0, 0, -8.75), App.Rotation())
sketch9.addGeometry(Part.ArcOfCircle(Part.Circle(Vector(0, 77, 0), Vector(0, 0, 1), 1.000007), math.radians(-47.382908), math.radians(132.617092)), False)
sketch9.addGeometry(Part.LineSegment(Vector(0.6771, 76.2641, 0), Vector(-19.3229, 57.8641, 0)), False)
sketch9.addGeometry(Part.ArcOfCircle(Part.Circle(Vector(-20, 58.6, 0), Vector(0, 0, 1), 1.000007), math.radians(132.617092), math.radians(312.617092)), False)
sketch9.addGeometry(Part.LineSegment(Vector(-20.6771, 59.3359, 0), Vector(-0.6771, 77.7359, 0)), False)
sketch9.addConstraint(Sketcher.Constraint("Tangent", 0, 1, 1, 1))
sketch9.addConstraint(Sketcher.Constraint("Tangent", 1, 2, 2, 2))
sketch9.addConstraint(Sketcher.Constraint("Tangent", 2, 1, 3, 1))
sketch9.addConstraint(Sketcher.Constraint("Tangent", 3, 2, 0, 2))
sketch9.addConstraint(Sketcher.Constraint("Equal", 0, 2))
sketch9.addConstraint(Sketcher.Constraint("PointOnObject", 0, 3, -2))
sketch9.addConstraint(Sketcher.Constraint("Radius", 0, Q("1 mm")))
sketch9.addConstraint(Sketcher.Constraint("DistanceY", -1, 1, 0, 3, Q("77 mm")))
sketch9.addConstraint(Sketcher.Constraint("DistanceX", 2, 3, -1, 1, Q("20 mm")))
sketch9.addConstraint(Sketcher.Constraint("DistanceY", -1, 1, 2, 3, Q("58.6 mm")))
pad5 = body.newObject("PartDesign::Pad", "Pad004")
pad5.Profile = sketch9
pad5.Length = 2
doc.recompute()

fillet4 = body.newObject("PartDesign::Fillet", "Fillet003")
fillet4.Base = (pad5, edges_at(pad5, [
    (20, 7.75, 77),
    (20, 7.75, 59.959),
    (18.523, 7.75, 58.6),
    (20, 7.75, 57.241),
    (1.477, 7.75, 77),
    (1, 7.75, 74.721),
    (-1, 7.75, 74.721),
    (-1.477, 7.75, 77),
    (-20, 7.75, 77),
    (-20, 7.75, 59.959),
    (-18.523, 7.75, 58.6),
    (-20, 7.75, 57.241),
    (-20, 7.75, 23.159),
    (-18.523, 7.75, 21.8),
    (-20, 7.75, 20.441),
    (-1.477, 7.75, 3.4),
    (-20, 7.75, 3.4),
    (1.477, 7.75, 3.4),
    (1, 7.75, 5.679),
    (-1, 7.75, 5.679),
    (20, 7.75, 3.4),
    (20, 7.75, 20.441),
    (20, 7.75, 23.159),
    (18.523, 7.75, 21.8),
    (1.477, 7.75, 40.2),
    (1, 7.75, 42.479),
    (-1, 7.75, 42.479),
    (-1.477, 7.75, 40.2),
    (-1, 7.75, 37.921),
    (1, 7.75, 37.921),
]))
fillet4.Radius = 3

sketch10 = body.newObject("Sketcher::SketchObject", "Sketch009")
sketch10.AttachmentSupport = (doc.getObject("XY_Plane"), [""])
sketch10.MapMode = "FlatFace"
sketch10.AttachmentOffset = App.Placement(Vector(0, 0, -1.2), App.Rotation())
add_polygon(sketch10, [(-27, -3.75), (-27, 3.75), (-22.4, 3.75), (-22.4, -3.75)])
sketch10.addConstraint(Sketcher.Constraint("Vertical", 0))
sketch10.addConstraint(Sketcher.Constraint("Horizontal", 1))
sketch10.addConstraint(Sketcher.Constraint("Vertical", 2))
sketch10.addConstraint(Sketcher.Constraint("Horizontal", 3))
sketch10.addConstraint(Sketcher.Constraint("DistanceX", 1, 1, 1, 2, Q("4.6 mm")))
sketch10.addConstraint(Sketcher.Constraint("DistanceY", 0, 1, 0, 2, Q("7.5 mm")))
sketch10.addConstraint(Sketcher.Constraint("DistanceX", 0, 2, -1, 1, Q("27 mm")))
sketch10.addConstraint(Sketcher.Constraint("DistanceY", -1, 1, 0, 2, Q("3.75 mm")))
pocket4 = body.newObject("PartDesign::Pocket", "Pocket003")
pocket4.Profile = sketch10
pocket4.Length = 12
pocket4.Reversed = True

sketch11 = body.newObject("Sketcher::SketchObject", "Sketch010")
sketch11.AttachmentSupport = (doc.getObject("XY_Plane"), [""])
sketch11.MapMode = "FlatFace"
sketch11.AttachmentOffset = App.Placement(Vector(0, 0, -1.2), App.Rotation())
add_polygon(sketch11, [(-25.5, -3.75), (-27, -3.75), (-27, 3.75), (-25.5, 3.75)])
sketch11.addConstraint(Sketcher.Constraint("Horizontal", 0))
sketch11.addConstraint(Sketcher.Constraint("Vertical", 1))
sketch11.addConstraint(Sketcher.Constraint("Horizontal", 2))
sketch11.addConstraint(Sketcher.Constraint("Vertical", 3))
sketch11.addConstraint(Sketcher.Constraint("DistanceX", 0, 2, 0, 1, Q("1.5 mm")))
sketch11.addConstraint(Sketcher.Constraint("DistanceY", 1, 1, 1, 2, Q("7.5 mm")))
sketch11.addConstraint(Sketcher.Constraint("DistanceX", 0, 2, -1, 1, Q("27 mm")))
sketch11.addConstraint(Sketcher.Constraint("DistanceY", 0, 2, -1, 1, Q("3.75 mm")))
pad6 = body.newObject("PartDesign::Pad", "Pad005")
pad6.Profile = sketch11
pad6.Length = 4
doc.recompute()

chamfer3 = body.newObject("PartDesign::Chamfer", "Chamfer002")
chamfer3.Base = (pad6, edges_at(pad6, [(-27, 0, -1.2)]))
chamfer3.Size = 0.6
doc.recompute()

fillet5 = body.newObject("PartDesign::Fillet", "Fillet004")
fillet5.Base = (chamfer3, edges_at(chamfer3, [
    (-24.7, 3.75, 10.8),
    (-24.7, -3.75, 10.8),
    (-26.25, 3.75, 2.8),
    (-26.25, -3.75, 2.8),
]))
fillet5.Radius = 1
doc.recompute()

fillet6 = body.newObject("PartDesign::Fillet", "Fillet005")
fillet6.Base = (fillet5, edges_at(fillet5, [
    (-25.5, 3.75, 3.3),
    (-25.5, 3.75, 0.8),
    (-22.4, 3.457, 10.507),
    (-22.4, 0, 10.8),
    (-22.4, -3.457, 10.507),
    (-22.4, -3.75, 4.3),
    (-22.4, 3.75, 4.3),
    (-25.5, -3.75, 3.3),
    (-25.5, -3.75, 0.8),
]))
fillet6.Radius = 0.6

doc.recompute()
